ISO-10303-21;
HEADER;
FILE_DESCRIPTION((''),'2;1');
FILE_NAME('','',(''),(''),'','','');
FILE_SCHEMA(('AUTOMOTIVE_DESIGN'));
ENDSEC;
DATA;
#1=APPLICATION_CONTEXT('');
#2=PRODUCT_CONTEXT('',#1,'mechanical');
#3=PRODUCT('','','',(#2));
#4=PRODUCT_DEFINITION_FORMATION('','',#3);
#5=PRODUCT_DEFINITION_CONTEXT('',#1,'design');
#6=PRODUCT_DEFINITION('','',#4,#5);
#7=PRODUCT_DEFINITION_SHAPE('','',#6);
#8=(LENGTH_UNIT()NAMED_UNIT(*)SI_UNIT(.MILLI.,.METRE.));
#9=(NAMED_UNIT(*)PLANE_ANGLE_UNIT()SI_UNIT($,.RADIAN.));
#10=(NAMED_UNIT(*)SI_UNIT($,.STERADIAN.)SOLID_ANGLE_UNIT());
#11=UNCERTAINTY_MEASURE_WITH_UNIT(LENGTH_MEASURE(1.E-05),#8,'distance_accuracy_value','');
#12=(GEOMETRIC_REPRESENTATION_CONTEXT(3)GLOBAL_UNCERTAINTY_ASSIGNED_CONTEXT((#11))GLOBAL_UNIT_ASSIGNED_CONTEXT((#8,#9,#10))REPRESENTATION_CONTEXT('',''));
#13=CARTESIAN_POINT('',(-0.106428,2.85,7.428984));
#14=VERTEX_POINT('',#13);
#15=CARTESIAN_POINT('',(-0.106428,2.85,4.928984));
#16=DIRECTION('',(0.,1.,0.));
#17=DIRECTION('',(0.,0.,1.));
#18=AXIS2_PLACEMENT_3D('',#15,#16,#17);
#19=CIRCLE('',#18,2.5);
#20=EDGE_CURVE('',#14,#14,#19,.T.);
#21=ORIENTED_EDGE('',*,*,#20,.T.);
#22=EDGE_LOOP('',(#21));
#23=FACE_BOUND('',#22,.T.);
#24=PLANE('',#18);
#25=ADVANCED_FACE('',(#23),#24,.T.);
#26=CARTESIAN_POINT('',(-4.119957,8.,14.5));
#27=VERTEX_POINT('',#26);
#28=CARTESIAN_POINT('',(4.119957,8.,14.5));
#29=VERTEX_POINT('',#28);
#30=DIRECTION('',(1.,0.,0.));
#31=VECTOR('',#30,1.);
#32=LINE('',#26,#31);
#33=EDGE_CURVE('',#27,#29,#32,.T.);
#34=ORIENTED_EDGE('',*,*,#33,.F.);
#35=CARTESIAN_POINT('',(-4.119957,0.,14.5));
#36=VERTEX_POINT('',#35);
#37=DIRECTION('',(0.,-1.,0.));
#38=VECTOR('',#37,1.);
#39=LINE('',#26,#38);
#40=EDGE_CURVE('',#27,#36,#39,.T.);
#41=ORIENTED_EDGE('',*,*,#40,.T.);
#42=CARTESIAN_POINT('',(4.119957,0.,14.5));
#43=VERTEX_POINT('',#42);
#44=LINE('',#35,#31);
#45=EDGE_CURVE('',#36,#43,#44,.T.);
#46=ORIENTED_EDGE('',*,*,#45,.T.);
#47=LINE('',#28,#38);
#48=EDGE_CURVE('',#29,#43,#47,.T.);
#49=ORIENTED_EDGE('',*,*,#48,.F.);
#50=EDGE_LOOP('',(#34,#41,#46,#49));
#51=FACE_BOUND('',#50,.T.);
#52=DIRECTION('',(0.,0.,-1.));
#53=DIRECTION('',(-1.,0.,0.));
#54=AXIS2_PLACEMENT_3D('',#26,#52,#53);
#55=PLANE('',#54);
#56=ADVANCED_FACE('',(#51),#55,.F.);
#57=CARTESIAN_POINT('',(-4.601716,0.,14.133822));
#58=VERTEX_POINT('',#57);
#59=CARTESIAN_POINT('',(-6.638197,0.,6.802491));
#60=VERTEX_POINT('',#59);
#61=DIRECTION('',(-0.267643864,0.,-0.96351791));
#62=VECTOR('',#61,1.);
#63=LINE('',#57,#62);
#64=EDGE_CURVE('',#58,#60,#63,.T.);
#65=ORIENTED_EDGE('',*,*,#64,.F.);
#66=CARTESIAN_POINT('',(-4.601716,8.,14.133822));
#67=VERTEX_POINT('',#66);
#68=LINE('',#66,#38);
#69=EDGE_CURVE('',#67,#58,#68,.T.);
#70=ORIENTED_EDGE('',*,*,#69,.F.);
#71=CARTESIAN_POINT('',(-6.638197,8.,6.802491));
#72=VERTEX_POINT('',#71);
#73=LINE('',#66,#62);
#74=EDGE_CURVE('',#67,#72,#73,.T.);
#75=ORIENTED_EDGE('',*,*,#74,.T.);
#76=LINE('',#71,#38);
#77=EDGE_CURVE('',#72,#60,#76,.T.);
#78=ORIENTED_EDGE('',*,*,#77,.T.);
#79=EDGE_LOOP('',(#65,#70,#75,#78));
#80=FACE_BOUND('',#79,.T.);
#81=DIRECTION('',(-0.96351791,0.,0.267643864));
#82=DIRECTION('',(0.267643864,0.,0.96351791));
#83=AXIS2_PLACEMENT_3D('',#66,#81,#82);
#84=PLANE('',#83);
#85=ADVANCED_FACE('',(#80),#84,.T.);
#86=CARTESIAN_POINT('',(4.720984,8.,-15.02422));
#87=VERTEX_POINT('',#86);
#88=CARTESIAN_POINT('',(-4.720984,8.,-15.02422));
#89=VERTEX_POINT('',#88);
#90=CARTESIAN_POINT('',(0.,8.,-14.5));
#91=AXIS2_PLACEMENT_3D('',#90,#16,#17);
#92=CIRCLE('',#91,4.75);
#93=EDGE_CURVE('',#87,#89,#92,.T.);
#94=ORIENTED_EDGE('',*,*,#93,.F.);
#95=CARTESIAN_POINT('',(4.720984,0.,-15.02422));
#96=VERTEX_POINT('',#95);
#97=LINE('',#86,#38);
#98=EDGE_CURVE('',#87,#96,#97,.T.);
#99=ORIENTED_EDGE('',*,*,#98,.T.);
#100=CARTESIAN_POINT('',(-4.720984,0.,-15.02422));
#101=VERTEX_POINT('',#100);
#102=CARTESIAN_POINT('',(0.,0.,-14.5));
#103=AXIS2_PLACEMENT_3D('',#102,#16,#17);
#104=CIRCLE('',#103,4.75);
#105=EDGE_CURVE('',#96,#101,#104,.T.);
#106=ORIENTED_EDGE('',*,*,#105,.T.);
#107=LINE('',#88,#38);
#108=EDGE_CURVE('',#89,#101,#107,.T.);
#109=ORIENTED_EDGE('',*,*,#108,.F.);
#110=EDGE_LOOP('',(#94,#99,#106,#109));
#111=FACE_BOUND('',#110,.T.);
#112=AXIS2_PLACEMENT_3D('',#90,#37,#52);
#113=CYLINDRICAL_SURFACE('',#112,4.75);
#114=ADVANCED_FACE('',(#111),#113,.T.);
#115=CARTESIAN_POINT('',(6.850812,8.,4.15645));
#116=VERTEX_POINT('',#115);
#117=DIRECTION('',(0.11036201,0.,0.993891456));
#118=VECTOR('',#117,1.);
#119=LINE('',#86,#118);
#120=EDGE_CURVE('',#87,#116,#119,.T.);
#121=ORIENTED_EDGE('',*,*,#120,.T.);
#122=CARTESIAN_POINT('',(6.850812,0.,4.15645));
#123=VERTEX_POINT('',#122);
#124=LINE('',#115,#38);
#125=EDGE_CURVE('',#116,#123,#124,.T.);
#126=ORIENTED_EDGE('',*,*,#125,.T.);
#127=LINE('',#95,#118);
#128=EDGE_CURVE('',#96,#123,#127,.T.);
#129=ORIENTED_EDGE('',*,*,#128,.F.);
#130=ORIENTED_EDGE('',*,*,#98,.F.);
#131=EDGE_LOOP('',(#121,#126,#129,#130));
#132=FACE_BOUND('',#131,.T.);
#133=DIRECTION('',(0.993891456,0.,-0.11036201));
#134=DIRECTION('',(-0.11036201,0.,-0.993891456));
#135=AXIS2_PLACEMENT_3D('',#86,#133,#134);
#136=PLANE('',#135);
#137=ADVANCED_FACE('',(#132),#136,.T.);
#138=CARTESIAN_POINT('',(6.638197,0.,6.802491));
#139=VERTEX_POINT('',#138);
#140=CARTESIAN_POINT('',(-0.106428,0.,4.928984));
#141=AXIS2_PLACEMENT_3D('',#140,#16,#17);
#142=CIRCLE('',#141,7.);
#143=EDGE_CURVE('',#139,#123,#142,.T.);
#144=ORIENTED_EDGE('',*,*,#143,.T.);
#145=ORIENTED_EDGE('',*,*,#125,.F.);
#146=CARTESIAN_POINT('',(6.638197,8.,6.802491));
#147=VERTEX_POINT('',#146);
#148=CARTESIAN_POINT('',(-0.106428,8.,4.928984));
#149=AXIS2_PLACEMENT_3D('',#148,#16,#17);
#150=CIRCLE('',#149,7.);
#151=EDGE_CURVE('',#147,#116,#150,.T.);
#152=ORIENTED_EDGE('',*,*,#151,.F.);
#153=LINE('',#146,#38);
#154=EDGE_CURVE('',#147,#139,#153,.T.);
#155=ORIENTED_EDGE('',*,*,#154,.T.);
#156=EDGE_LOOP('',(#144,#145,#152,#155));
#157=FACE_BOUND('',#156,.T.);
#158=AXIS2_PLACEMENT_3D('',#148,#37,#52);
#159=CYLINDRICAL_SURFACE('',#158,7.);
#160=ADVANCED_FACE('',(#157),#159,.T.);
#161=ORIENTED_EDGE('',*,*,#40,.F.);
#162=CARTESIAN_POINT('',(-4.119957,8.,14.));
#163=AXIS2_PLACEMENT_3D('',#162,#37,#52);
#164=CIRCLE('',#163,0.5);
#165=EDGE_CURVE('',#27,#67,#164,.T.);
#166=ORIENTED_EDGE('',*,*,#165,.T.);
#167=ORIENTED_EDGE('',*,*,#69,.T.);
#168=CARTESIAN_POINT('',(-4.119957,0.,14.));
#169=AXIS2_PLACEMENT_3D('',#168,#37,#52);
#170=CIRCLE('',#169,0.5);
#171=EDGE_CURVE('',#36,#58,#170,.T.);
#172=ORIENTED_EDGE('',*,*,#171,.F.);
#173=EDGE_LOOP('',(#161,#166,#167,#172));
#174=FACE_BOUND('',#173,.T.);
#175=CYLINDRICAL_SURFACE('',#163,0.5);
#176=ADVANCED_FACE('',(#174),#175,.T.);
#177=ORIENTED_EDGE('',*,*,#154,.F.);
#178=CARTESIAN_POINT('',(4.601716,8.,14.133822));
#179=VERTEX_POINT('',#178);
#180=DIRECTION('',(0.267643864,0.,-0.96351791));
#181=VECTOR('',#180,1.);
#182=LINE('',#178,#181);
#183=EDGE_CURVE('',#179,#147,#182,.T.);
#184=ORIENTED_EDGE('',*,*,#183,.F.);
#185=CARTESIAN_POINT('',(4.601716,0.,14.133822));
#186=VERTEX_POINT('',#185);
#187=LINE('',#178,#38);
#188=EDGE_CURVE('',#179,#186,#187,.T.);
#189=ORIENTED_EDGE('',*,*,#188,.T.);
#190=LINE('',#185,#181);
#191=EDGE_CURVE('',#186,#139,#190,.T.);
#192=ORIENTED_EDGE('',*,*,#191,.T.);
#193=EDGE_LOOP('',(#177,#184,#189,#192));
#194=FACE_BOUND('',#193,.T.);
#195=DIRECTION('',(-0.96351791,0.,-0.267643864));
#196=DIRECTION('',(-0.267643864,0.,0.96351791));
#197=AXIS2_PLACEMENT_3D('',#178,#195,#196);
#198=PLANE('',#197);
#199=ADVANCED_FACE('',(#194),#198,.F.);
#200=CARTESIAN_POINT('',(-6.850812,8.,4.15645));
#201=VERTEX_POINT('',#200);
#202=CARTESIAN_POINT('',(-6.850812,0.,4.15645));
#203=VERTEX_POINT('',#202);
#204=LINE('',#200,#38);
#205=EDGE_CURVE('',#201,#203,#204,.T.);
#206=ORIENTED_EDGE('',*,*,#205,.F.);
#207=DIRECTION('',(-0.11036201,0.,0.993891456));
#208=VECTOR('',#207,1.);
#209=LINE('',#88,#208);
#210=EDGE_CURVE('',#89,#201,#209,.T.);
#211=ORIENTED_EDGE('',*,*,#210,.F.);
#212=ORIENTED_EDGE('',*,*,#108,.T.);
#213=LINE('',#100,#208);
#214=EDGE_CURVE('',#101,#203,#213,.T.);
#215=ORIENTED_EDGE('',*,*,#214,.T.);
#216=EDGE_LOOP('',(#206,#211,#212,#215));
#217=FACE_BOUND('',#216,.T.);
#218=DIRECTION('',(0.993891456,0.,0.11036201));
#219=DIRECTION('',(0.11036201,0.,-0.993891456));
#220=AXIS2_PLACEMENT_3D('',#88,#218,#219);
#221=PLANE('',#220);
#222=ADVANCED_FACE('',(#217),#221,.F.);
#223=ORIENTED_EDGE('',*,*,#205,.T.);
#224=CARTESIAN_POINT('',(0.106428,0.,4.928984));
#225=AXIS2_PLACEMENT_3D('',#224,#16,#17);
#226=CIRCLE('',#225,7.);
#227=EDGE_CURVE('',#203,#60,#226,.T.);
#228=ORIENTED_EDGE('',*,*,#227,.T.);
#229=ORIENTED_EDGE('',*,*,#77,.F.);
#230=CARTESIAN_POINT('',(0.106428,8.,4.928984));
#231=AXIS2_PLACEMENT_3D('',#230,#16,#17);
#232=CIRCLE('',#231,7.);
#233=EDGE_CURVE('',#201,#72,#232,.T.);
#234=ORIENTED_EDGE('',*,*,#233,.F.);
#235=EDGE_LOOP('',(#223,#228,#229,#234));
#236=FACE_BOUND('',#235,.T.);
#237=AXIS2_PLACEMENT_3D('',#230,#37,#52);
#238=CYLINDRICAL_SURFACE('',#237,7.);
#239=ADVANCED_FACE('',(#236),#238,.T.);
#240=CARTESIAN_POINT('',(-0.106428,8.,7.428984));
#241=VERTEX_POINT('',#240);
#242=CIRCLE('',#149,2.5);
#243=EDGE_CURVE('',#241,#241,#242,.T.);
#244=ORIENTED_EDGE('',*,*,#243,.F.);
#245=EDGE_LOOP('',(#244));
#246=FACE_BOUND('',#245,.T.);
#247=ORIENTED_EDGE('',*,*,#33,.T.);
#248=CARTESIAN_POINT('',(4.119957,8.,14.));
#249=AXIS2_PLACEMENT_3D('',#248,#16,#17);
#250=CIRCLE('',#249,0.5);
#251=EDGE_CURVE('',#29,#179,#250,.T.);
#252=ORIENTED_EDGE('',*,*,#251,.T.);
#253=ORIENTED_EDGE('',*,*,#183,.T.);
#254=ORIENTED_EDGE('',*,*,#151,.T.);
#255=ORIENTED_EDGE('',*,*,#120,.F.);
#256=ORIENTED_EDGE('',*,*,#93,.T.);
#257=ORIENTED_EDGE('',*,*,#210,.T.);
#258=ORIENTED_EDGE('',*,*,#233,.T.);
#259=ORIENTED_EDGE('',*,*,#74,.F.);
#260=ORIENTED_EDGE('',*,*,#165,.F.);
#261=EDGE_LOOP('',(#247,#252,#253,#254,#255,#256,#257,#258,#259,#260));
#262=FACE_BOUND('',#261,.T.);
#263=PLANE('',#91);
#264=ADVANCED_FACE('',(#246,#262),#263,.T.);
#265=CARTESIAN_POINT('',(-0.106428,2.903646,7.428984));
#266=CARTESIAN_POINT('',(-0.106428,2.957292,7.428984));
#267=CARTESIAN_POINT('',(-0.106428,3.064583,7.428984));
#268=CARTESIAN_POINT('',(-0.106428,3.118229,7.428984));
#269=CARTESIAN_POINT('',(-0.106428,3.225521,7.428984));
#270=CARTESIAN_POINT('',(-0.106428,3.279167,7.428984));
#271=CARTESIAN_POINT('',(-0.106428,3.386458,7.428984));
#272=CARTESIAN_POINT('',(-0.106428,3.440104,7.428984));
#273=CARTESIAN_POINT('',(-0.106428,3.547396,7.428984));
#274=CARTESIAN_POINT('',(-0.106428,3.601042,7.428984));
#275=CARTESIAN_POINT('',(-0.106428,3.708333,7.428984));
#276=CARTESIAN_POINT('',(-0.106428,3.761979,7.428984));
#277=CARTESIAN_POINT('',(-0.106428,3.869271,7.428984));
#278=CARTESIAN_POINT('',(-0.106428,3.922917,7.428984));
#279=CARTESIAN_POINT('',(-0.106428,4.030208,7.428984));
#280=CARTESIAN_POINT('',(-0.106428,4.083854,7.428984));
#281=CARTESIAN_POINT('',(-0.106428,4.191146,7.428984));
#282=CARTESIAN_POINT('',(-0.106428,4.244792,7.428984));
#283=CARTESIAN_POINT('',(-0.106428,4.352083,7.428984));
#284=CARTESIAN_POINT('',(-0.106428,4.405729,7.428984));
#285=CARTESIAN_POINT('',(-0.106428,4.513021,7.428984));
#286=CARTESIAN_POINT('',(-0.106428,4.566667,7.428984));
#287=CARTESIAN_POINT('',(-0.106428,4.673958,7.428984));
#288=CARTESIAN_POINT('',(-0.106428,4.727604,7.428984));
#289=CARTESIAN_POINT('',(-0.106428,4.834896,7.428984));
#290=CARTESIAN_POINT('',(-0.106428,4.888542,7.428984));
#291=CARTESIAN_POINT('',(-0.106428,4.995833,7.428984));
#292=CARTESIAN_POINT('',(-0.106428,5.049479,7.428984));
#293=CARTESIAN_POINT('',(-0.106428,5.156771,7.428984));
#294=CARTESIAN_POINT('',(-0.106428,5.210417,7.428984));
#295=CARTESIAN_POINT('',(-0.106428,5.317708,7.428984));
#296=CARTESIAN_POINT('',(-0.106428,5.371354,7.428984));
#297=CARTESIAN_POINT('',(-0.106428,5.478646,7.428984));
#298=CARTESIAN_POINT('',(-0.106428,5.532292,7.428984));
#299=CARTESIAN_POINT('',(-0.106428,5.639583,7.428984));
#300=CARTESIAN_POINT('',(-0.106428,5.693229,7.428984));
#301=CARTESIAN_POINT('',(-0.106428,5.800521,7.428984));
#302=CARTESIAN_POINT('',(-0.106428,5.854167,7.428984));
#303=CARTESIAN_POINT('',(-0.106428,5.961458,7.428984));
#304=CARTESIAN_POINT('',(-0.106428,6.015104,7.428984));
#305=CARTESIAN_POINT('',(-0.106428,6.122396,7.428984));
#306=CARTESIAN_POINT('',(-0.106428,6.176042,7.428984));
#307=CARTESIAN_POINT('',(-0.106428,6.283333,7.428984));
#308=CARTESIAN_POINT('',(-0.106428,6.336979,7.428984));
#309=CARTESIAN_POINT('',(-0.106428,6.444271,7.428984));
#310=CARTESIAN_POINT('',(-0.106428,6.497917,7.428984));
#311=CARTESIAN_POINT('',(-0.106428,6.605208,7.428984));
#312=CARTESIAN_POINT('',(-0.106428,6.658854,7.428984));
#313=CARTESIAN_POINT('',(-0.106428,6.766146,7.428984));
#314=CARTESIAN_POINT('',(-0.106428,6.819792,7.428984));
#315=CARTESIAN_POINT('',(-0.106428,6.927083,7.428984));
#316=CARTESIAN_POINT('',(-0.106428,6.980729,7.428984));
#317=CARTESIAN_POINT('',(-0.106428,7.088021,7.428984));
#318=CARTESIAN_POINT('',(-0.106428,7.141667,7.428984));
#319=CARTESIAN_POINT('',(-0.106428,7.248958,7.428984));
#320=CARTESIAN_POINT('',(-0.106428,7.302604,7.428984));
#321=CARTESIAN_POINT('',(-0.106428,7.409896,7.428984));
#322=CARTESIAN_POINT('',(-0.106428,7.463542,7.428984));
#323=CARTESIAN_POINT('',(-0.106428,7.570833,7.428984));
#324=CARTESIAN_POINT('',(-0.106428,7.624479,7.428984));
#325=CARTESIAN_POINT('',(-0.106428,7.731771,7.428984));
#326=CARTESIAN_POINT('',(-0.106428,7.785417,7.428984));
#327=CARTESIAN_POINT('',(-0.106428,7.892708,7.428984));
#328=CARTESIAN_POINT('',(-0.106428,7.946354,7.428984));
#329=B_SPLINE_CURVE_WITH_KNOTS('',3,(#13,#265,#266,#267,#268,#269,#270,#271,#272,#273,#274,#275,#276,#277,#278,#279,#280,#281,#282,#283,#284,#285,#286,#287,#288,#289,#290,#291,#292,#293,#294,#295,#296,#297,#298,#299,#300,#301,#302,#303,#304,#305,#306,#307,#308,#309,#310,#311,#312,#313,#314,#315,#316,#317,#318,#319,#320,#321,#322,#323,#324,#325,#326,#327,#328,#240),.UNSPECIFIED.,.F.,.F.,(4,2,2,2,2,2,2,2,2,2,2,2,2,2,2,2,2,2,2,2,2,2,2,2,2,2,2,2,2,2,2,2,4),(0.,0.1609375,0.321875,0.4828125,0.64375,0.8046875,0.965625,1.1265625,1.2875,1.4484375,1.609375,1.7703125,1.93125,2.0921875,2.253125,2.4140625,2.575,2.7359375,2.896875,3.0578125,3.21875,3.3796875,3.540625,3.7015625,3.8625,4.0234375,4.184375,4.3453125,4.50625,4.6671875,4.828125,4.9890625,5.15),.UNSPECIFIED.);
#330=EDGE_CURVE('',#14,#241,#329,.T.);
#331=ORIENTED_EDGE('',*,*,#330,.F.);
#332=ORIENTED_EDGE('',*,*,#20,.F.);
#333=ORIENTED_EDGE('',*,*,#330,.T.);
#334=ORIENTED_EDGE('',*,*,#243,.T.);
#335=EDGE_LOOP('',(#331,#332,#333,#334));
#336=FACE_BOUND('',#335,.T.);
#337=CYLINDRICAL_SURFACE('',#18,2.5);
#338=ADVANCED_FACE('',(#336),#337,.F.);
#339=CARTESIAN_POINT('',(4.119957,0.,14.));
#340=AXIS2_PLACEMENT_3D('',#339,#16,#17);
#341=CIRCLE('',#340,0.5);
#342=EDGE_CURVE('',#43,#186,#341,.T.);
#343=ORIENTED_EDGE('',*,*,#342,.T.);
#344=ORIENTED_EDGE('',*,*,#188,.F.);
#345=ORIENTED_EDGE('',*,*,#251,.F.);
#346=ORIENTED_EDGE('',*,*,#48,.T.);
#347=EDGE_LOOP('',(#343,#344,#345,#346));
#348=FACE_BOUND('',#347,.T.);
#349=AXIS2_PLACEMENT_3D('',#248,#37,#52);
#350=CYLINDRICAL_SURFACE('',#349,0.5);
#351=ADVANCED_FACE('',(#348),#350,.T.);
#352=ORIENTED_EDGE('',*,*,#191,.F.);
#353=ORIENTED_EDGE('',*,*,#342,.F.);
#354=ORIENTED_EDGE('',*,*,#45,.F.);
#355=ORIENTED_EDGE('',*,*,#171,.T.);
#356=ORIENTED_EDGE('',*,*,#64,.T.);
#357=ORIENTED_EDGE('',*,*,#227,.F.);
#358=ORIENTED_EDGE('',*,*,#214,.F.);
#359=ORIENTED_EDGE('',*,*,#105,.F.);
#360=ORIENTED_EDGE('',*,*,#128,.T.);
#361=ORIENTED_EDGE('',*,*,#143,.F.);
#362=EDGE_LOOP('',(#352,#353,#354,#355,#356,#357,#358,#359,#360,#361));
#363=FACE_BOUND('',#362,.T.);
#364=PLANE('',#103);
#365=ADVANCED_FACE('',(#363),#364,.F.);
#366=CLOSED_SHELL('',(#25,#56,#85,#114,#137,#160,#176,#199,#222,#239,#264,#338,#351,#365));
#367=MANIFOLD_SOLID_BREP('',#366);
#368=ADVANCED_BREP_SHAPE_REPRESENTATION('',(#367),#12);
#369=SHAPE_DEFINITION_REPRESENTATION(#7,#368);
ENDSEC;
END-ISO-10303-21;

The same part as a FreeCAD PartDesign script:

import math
import FreeCAD as App
import Part
import Sketcher

V = App.Vector
Q = App.Units.Quantity

doc = App.newDocument("Part")
body = doc.addObject("PartDesign::Body", "Body")

sketch1 = doc.addObject("Sketcher::SketchObject", "Sketch")
body.addObject(sketch1)
sketch1.AttachmentSupport = (doc.XZ_Plane, [""])
sketch1.MapMode = "FlatFace"
sketch1.addGeometry(Part.LineSegment(V(-4.12, 14.5, 0), V(4.12, 14.5, 0)), False)
sketch1.addGeometry(Part.ArcOfCircle(Part.Circle(V(4.12, 14, 0), V(0, 0, 1), 0.5), math.radians(16), math.radians(90)), False)
sketch1.addGeometry(Part.LineSegment(V(4.6, 14.13, 0), V(6.64, 6.8, 0)), False)
sketch1.addGeometry(Part.ArcOfCircle(Part.Circle(V(-0.11, 4.93, 0), V(0, 0, 1), 7), math.radians(-6), math.radians(16)), False)
sketch1.addGeometry(Part.LineSegment(V(6.85, 4.16, 0), V(4.72, -15.02, 0)), False)
sketch1.addGeometry(Part.ArcOfCircle(Part.Circle(V(0, -14.5, 0), V(0, 0, 1), 4.75), math.radians(-174), math.radians(-6)), False)
sketch1.addGeometry(Part.LineSegment(V(-4.72, -15.02, 0), V(-6.85, 4.16, 0)), False)
sketch1.addGeometry(Part.ArcOfCircle(Part.Circle(V(0.11, 4.93, 0), V(0, 0, 1), 7), math.radians(164), math.radians(186)), False)
sketch1.addGeometry(Part.LineSegment(V(-6.64, 6.8, 0), V(-4.6, 14.13, 0)), False)
sketch1.addGeometry(Part.ArcOfCircle(Part.Circle(V(-4.12, 14, 0), V(0, 0, 1), 0.5), math.radians(90), math.radians(164)), False)
sketch1.addConstraint(Sketcher.Constraint("Tangent", 0, 2, 1, 2))
sketch1.addConstraint(Sketcher.Constraint("Tangent", 1, 1, 2, 1))
sketch1.addConstraint(Sketcher.Constraint("Tangent", 2, 2, 3, 2))
sketch1.addConstraint(Sketcher.Constraint("Tangent", 3, 1, 4, 1))
sketch1.addConstraint(Sketcher.Constraint("Tangent", 4, 2, 5, 2))
sketch1.addConstraint(Sketcher.Constraint("Tangent", 5, 1, 6, 1))
sketch1.addConstraint(Sketcher.Constraint("Tangent", 6, 2, 7, 2))
sketch1.addConstraint(Sketcher.Constraint("Tangent", 7, 1, 8, 1))
sketch1.addConstraint(Sketcher.Constraint("Tangent", 8, 2, 9, 2))
sketch1.addConstraint(Sketcher.Constraint("Tangent", 9, 1, 0, 1))
sketch1.addConstraint(Sketcher.Constraint("Horizontal", 0))
sketch1.addConstraint(Sketcher.Constraint("Equal", 3, 7))
sketch1.addConstraint(Sketcher.Constraint("Equal", 1, 9))
sketch1.addConstraint(Sketcher.Constraint("Symmetric", 3, 3, 7, 3, -2))
sketch1.addConstraint(Sketcher.Constraint("PointOnObject", 5, 3, -2))
sketch1.addConstraint(Sketcher.Constraint("Horizontal", 2, 2, 7, 1))
sketch1.addConstraint(Sketcher.Constraint("Radius", 3, Q("7 mm")))
sketch1.addConstraint(Sketcher.Constraint("Radius", 1, Q("0.5 mm")))
sketch1.addConstraint(Sketcher.Constraint("Radius", 5, Q("4.75 mm")))
sketch1.addConstraint(Sketcher.Constraint("DistanceY", -1, 1, 1, 3, Q("14 mm")))
sketch1.addConstraint(Sketcher.Constraint("DistanceY", 5, 3, 0, 2, Q("29 mm")))
sketch1.addConstraint(Sketcher.Constraint("Distance", 2, Q("7.60892 mm")))
sketch1.addConstraint(Sketcher.Constraint("DistanceX", 0, 1, 0, 2, Q("8.239914 mm")))
sketch1.addConstraint(Sketcher.Constraint("DistanceX", 3, 3, -1, 1, Q("0.106428 mm")))
pad1 = doc.addObject("PartDesign::Pad", "Pad")
body.addObject(pad1)
pad1.Profile = sketch1
pad1.Length = 8
pad1.Reversed = True

sketch2 = doc.addObject("Sketcher::SketchObject", "Sketch001")
body.addObject(sketch2)
sketch2.AttachmentSupport = (doc.XZ_Plane, [""])
sketch2.MapMode = "FlatFace"
sketch2.AttachmentOffset = App.Placement(V(0, 0, -8), App.Rotation())
sketch2.addGeometry(Part.Circle(V(-0.1, 4.9, 0), V(0, 0, 1), 2.5), False)
sketch2.addConstraint(Sketcher.Constraint("Diameter", 0, Q("5 mm")))
sketch2.addConstraint(Sketcher.Constraint("DistanceX", 0, 3, -1, 1, Q("0.106428 mm")))
sketch2.addConstraint(Sketcher.Constraint("DistanceY", -1, 1, 0, 3, Q("4.928984 mm")))
pocket1 = doc.addObject("PartDesign::Pocket", "Pocket")
body.addObject(pocket1)
pocket1.Profile = sketch2
pocket1.Length = 5.15
pocket1.Reversed = True

doc.recompute()
